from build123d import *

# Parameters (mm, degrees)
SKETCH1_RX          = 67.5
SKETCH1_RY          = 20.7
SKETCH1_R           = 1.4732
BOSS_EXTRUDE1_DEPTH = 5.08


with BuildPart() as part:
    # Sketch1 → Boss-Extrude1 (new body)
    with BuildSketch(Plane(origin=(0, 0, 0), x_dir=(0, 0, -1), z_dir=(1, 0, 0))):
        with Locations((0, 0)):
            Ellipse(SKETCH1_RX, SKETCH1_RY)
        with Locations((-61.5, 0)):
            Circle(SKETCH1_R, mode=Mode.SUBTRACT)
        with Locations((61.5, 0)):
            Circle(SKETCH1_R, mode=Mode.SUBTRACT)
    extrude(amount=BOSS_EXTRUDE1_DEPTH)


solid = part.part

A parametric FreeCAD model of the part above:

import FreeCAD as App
import Part
import Sketcher
from FreeCAD import Vector
Q = App.Units.Quantity

doc = App.newDocument("Part")
params = doc.addObject("Spreadsheet::Sheet", "Params")
for row, (alias, value) in enumerate([
    ("sketch1_diameter", "0.116 in"),
    ("pad1_length", "0.2 in"),
], start=1):
    params.set(f"A{row}", alias)
    params.set(f"B{row}", "=" + value)
    params.setAlias(f"B{row}", alias)

body = doc.addObject("PartDesign::Body", "Body")

sketch1 = body.newObject("Sketcher::SketchObject", "Sketch")
sketch1.AttachmentSupport = (doc.getObject("YZ_Plane"), [""])
sketch1.MapMode = "FlatFace"
sketch1.addGeometry([
    Part.Ellipse(Vector(0, -67.5, 0), Vector(20.7, 0, 0), Vector(0, 0, 0)),
    Part.Circle(Vector(0, 61.5, 0), Vector(0, 0, 1), 1.4732),
    Part.Circle(Vector(0, -61.5, 0), Vector(0, 0, 1), 1.4732),
], False)
sketch1.addConstraint([
    Sketcher.Constraint("Block", 0),
    Sketcher.Constraint("Equal", 1, 2),
    Sketcher.Constraint("Symmetric", 1, 3, 2, 3, -1, 1),
    Sketcher.Constraint("PointOnObject", 1, 3, -2),
    Sketcher.Constraint("Diameter", 1, Q("0.116 in")),
    Sketcher.Constraint("DistanceY", -1, 1, 1, 3, 61.5),
])
sketch1.setExpression("Constraints[4]", "Params.sketch1_diameter")
pad1 = body.newObject("PartDesign::Pad", "Pad")
pad1.Profile = sketch1
pad1.setExpression("Length", "Params.pad1_length")

doc.recompute()
